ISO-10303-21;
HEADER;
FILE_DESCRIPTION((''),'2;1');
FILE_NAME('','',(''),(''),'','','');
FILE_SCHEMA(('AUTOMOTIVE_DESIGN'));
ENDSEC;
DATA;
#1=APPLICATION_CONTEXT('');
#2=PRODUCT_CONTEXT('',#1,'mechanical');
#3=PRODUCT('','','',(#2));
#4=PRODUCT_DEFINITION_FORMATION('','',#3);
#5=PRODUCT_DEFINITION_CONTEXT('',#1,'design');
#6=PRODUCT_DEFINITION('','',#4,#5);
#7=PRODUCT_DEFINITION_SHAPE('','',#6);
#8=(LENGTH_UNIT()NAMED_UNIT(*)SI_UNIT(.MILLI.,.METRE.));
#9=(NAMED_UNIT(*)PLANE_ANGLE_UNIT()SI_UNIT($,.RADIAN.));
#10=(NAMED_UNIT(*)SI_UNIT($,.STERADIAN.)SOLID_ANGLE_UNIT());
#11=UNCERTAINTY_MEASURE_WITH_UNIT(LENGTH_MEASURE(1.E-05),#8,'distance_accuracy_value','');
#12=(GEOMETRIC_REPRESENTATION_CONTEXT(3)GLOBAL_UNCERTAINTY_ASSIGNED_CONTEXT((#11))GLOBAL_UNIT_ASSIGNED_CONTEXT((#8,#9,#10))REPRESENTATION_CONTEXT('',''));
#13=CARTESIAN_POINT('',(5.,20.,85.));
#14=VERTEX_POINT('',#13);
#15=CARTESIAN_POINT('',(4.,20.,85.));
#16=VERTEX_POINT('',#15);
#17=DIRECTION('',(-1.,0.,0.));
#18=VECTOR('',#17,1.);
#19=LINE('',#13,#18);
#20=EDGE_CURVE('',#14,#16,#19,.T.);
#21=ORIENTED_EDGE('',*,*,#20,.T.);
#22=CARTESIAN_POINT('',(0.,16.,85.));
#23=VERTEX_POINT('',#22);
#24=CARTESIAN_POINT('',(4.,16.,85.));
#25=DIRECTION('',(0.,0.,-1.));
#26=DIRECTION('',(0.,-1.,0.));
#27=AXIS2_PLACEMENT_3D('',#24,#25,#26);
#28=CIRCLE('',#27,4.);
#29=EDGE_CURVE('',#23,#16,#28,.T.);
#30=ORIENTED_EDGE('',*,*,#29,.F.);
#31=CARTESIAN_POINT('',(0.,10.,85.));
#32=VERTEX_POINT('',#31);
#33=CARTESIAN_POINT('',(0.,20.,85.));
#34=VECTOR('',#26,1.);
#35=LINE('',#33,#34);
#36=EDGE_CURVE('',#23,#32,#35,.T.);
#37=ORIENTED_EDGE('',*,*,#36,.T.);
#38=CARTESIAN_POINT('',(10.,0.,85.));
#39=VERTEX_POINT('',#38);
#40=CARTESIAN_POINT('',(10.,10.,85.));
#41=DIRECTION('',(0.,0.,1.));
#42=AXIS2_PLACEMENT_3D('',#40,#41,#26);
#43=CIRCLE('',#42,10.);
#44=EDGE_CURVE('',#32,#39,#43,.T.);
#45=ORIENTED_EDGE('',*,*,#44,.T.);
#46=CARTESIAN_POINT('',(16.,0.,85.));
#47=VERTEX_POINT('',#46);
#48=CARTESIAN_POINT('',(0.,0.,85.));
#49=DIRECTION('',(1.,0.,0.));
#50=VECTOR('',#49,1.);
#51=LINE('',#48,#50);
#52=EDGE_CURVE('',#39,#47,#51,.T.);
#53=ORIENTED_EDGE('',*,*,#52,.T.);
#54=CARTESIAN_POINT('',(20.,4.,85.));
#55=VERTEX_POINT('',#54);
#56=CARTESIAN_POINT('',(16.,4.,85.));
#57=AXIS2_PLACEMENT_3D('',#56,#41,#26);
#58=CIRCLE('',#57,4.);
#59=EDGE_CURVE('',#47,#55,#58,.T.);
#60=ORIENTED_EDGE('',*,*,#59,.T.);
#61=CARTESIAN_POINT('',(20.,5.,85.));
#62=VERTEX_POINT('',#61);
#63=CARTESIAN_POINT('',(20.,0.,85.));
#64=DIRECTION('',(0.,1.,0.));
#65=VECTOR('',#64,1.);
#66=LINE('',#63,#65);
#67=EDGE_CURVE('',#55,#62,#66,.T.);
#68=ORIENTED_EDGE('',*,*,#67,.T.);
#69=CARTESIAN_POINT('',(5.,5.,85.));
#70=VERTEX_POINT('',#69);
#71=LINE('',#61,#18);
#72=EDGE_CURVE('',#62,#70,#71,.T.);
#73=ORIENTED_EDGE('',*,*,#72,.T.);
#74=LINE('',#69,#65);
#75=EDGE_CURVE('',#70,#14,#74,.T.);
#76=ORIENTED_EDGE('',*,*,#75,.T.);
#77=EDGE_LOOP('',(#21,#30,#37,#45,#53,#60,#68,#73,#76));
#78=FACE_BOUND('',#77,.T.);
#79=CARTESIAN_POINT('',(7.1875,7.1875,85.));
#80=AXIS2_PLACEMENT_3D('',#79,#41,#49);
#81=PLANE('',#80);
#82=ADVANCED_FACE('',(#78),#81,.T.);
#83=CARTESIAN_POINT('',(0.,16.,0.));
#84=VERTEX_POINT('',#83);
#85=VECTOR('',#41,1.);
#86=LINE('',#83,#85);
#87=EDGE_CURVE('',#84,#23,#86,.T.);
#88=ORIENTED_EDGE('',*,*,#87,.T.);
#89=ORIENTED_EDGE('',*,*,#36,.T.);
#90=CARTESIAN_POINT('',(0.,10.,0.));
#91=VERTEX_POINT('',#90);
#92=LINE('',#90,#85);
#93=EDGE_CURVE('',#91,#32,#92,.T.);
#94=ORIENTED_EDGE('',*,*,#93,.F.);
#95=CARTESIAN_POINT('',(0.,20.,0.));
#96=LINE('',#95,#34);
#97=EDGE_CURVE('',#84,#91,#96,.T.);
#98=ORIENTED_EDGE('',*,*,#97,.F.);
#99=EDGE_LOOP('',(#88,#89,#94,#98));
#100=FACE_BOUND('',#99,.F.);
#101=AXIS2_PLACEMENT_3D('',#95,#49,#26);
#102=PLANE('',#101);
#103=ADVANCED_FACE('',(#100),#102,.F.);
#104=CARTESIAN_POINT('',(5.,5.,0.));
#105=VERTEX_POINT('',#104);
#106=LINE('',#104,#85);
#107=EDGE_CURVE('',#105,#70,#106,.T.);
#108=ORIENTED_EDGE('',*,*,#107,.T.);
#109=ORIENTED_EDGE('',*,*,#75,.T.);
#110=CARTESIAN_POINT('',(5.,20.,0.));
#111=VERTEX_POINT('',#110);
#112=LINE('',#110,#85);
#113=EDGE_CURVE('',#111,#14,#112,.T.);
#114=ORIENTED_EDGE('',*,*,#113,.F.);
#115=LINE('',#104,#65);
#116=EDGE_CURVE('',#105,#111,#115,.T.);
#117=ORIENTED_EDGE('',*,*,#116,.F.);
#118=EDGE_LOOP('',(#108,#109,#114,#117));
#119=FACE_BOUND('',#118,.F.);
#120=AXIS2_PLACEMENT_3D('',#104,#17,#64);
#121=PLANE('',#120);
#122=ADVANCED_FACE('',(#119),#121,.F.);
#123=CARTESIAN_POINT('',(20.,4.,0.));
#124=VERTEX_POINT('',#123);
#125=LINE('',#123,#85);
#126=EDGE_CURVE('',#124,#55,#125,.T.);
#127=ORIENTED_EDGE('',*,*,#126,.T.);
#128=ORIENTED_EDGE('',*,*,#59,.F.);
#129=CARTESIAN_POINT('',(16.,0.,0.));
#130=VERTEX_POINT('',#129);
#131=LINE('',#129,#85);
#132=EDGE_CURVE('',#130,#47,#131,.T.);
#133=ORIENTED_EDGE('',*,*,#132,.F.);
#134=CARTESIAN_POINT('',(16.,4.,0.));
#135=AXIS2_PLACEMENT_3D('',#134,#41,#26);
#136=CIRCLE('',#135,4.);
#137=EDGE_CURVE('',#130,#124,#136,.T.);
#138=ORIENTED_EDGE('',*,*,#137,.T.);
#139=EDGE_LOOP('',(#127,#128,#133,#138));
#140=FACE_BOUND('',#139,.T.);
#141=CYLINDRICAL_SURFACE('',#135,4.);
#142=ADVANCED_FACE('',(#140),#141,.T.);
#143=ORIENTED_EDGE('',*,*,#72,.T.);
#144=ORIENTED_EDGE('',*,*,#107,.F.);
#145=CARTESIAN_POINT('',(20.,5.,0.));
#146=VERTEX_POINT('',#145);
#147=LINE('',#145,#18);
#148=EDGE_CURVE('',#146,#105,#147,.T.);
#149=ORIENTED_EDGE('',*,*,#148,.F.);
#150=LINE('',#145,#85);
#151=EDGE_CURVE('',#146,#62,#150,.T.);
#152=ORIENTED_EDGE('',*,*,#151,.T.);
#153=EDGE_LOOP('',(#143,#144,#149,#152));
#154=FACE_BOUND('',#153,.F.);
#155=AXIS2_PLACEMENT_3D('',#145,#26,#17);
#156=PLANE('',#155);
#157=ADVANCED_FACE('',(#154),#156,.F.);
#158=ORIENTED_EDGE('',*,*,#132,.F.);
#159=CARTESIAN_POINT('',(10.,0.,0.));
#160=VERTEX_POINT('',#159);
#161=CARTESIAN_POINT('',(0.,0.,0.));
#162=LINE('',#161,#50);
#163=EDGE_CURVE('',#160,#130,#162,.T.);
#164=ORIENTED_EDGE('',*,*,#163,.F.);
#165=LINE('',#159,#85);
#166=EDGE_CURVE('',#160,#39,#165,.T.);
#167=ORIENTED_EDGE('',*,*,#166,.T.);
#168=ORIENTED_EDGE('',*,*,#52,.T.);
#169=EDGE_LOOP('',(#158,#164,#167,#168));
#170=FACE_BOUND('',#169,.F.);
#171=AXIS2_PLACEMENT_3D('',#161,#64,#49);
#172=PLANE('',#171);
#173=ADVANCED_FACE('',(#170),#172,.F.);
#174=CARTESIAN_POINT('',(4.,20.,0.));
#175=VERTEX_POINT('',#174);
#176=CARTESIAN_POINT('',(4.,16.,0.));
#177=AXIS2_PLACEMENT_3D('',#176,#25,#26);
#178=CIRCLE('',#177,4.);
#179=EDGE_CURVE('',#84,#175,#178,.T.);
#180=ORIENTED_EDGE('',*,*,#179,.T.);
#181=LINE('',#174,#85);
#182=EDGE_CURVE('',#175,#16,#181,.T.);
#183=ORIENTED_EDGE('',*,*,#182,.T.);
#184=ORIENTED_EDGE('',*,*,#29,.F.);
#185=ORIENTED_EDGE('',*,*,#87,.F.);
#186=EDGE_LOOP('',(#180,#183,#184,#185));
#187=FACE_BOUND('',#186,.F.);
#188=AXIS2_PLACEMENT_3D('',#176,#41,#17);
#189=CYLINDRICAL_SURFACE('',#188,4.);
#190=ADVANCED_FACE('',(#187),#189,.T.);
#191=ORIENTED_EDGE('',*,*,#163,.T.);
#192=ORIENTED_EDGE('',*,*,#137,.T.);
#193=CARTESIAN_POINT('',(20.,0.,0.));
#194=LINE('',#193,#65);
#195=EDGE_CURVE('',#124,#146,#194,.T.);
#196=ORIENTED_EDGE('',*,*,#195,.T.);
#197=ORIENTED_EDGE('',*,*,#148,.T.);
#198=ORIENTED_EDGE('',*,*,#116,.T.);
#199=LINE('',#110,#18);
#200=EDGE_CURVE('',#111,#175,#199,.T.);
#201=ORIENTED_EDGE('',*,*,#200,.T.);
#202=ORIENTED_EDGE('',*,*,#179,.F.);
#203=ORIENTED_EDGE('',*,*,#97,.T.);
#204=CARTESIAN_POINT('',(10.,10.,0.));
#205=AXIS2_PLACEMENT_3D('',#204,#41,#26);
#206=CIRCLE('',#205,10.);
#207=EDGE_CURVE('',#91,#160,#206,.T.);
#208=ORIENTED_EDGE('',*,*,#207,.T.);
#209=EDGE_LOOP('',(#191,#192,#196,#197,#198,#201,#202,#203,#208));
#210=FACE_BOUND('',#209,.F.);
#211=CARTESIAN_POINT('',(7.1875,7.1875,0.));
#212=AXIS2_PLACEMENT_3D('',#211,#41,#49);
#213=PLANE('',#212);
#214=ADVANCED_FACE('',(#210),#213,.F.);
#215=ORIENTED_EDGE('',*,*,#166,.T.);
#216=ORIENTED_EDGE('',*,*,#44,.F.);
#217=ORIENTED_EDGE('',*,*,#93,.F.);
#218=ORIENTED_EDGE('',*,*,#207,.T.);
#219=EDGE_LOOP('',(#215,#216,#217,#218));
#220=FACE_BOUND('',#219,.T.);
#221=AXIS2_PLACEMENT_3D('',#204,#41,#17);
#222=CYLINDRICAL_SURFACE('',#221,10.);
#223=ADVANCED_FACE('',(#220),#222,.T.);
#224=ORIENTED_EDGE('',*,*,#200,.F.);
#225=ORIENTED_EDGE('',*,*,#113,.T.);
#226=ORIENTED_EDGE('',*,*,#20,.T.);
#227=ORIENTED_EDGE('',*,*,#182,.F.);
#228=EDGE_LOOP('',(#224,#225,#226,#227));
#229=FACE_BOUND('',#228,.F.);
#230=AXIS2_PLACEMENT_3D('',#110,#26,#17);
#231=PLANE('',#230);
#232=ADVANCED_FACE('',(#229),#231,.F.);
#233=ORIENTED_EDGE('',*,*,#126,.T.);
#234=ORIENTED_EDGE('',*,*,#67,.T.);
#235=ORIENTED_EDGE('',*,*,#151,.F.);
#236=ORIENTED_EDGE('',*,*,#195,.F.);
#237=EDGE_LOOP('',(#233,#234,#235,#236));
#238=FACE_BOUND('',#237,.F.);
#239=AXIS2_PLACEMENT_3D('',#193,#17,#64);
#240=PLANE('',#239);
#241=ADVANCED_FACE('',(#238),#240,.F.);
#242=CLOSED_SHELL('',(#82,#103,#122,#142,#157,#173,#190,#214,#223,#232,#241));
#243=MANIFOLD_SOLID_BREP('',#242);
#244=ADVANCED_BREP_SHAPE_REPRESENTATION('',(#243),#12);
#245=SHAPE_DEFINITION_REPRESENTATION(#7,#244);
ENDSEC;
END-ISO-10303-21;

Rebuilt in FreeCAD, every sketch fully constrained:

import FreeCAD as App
import Part
import Sketcher
Q = App.Units.Quantity


def edges_at(feature, points):
    """Names of the edges that pass closest to the given points."""
    edges = feature.Shape.Edges
    near = lambda p: min(range(len(edges)), key=lambda i: edges[i].distToShape(Part.Vertex(*p))[0])
    return sorted({f"Edge{near(p) + 1}" for p in points})

doc = App.newDocument("Part")
params = doc.addObject("Spreadsheet::Sheet", "Params")
for row, (alias, value) in enumerate([
    ("sketch1_width", "20 mm"),
    ("sketch1_width2", "15 mm"),
    ("pad1_length", "85 mm"),
    ("fillet_radius", "10 mm"),
    ("fillet2_radius", "4 mm"),
], start=1):
    params.set(f"A{row}", alias)
    params.set(f"B{row}", "=" + value)
    params.setAlias(f"B{row}", alias)

body = doc.addObject("PartDesign::Body", "Body")

sketch1 = doc.addObject("Sketcher::SketchObject", "Sketch")
body.addObject(sketch1)
sketch1.AttachmentSupport = (doc.XY_Plane, [""])
sketch1.MapMode = "FlatFace"
sketch1.addGeometry(Part.LineSegment(App.Vector(0, 20, 0), App.Vector(0, 0, 0)), False)
sketch1.addGeometry(Part.LineSegment(App.Vector(0, 0, 0), App.Vector(20, 0, 0)), False)
sketch1.addGeometry(Part.LineSegment(App.Vector(20, 0, 0), App.Vector(20, 5, 0)), False)
sketch1.addGeometry(Part.LineSegment(App.Vector(20, 5, 0), App.Vector(5, 5, 0)), False)
sketch1.addGeometry(Part.LineSegment(App.Vector(5, 5, 0), App.Vector(5, 20, 0)), False)
sketch1.addGeometry(Part.LineSegment(App.Vector(5, 20, 0), App.Vector(0, 20, 0)), False)
sketch1.addConstraint(Sketcher.Constraint("Coincident", 0, 2, 1, 1))
sketch1.addConstraint(Sketcher.Constraint("Coincident", 1, 2, 2, 1))
sketch1.addConstraint(Sketcher.Constraint("Coincident", 2, 2, 3, 1))
sketch1.addConstraint(Sketcher.Constraint("Coincident", 3, 2, 4, 1))
sketch1.addConstraint(Sketcher.Constraint("Coincident", 4, 2, 5, 1))
sketch1.addConstraint(Sketcher.Constraint("Coincident", 5, 2, 0, 1))
sketch1.addConstraint(Sketcher.Constraint("Vertical", 0))
sketch1.addConstraint(Sketcher.Constraint("Horizontal", 1))
sketch1.addConstraint(Sketcher.Constraint("Vertical", 2))
sketch1.addConstraint(Sketcher.Constraint("Horizontal", 3))
sketch1.addConstraint(Sketcher.Constraint("Vertical", 4))
sketch1.addConstraint(Sketcher.Constraint("Horizontal", 5))
sketch1.addConstraint(Sketcher.Constraint("Coincident", 0, 2, -1, 1))
sketch1.addConstraint(Sketcher.Constraint("Equal", 1, 0))
sketch1.addConstraint(Sketcher.Constraint("Equal", 5, 2))
sketch1.addConstraint(Sketcher.Constraint("DistanceX", 1, 1, 1, 2, Q("20 mm")))
sketch1.addConstraint(Sketcher.Constraint("DistanceX", 3, 2, 3, 1, Q("15 mm")))
sketch1.setExpression("Constraints[15]", "Params.sketch1_width")
sketch1.setExpression("Constraints[16]", "Params.sketch1_width2")
pad1 = doc.addObject("PartDesign::Pad", "Pad")
body.addObject(pad1)
pad1.Profile = sketch1
pad1.setExpression("Length", "Params.pad1_length")
doc.recompute()

fillet = doc.addObject("PartDesign::Fillet", "Fillet")
body.addObject(fillet)
fillet.Base = (pad1, edges_at(pad1, [(0, 0, 42.5)]))
fillet.setExpression("Radius", "Params.fillet_radius")
doc.recompute()

fillet2 = doc.addObject("PartDesign::Fillet", "Fillet001")
body.addObject(fillet2)
fillet2.Base = (fillet, edges_at(fillet, [(0, 20, 42.5), (20, 0, 42.5)]))
fillet2.setExpression("Radius", "Params.fillet2_radius")

doc.recompute()
